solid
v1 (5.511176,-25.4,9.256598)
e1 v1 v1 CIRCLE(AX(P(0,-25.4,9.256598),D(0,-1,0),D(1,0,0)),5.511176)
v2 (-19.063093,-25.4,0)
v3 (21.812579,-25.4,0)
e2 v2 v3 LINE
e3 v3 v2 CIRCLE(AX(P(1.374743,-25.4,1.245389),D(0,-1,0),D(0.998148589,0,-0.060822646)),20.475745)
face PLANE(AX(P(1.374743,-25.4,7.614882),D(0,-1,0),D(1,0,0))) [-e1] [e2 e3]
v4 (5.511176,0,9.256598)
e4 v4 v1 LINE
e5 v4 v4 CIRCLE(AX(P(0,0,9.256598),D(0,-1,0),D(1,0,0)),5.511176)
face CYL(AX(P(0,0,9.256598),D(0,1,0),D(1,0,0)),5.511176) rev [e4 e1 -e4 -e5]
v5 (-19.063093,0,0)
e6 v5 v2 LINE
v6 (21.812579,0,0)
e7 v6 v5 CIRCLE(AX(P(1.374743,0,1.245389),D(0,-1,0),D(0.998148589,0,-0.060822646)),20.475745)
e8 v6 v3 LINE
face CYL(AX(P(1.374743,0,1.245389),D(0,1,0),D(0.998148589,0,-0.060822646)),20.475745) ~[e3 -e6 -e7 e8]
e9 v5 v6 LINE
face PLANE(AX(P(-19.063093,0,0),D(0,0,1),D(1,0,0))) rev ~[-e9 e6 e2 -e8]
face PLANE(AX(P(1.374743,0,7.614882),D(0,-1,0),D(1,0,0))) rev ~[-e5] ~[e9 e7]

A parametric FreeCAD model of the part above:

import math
import FreeCAD as App
import Part
import Sketcher
from FreeCAD import Vector

doc = App.newDocument("Part")
params = doc.addObject("Spreadsheet::Sheet", "Params")
for row, (alias, value) in enumerate([
    ("pad1_length", "1 in"),
], start=1):
    params.set(f"A{row}", alias)
    params.set(f"B{row}", "=" + value)
    params.setAlias(f"B{row}", alias)

body = doc.addObject("PartDesign::Body", "Body")

# Sketch on XZ plane
sketch1 = body.newObject("Sketcher::SketchObject", "Sketch")
sketch1.AttachmentSupport = (doc.getObject("XZ_Plane"), [""])
sketch1.MapMode = "FlatFace"
sketch1.addGeometry([
    Part.ArcOfCircle(Part.Circle(Vector(1, 1, 0), Vector(0, 0, 1), 20), math.radians(-3), math.radians(183)),
    Part.LineSegment(Vector(-19, 0, 0), Vector(22, 0, 0)),
    Part.Circle(Vector(0, 9, 0), Vector(0, 0, 1), 6),
], False)
sketch1.addConstraint([
    Sketcher.Constraint("Coincident", 0, 1, 1, 2),
    Sketcher.Constraint("Coincident", 1, 1, 0, 2),
    Sketcher.Constraint("Horizontal", 1),
    Sketcher.Constraint("PointOnObject", 2, 3, -2),
    Sketcher.Constraint("PointOnObject", 0, 1, -1),
    Sketcher.Constraint("Diameter", 2, 11.022352),
    Sketcher.Constraint("Radius", 0, 20.475745),
    Sketcher.Constraint("DistanceX", 1, 1, 1, 2, 40.875672),
    Sketcher.Constraint("DistanceY", 0, 1, 2, 3, 9.256598),
    Sketcher.Constraint("DistanceX", -1, 1, 0, 1, 21.812579),
])
pad1 = body.newObject("PartDesign::Pad", "Pad")
pad1.Profile = sketch1
pad1.setExpression("Length", "Params.pad1_length")

doc.recompute()
